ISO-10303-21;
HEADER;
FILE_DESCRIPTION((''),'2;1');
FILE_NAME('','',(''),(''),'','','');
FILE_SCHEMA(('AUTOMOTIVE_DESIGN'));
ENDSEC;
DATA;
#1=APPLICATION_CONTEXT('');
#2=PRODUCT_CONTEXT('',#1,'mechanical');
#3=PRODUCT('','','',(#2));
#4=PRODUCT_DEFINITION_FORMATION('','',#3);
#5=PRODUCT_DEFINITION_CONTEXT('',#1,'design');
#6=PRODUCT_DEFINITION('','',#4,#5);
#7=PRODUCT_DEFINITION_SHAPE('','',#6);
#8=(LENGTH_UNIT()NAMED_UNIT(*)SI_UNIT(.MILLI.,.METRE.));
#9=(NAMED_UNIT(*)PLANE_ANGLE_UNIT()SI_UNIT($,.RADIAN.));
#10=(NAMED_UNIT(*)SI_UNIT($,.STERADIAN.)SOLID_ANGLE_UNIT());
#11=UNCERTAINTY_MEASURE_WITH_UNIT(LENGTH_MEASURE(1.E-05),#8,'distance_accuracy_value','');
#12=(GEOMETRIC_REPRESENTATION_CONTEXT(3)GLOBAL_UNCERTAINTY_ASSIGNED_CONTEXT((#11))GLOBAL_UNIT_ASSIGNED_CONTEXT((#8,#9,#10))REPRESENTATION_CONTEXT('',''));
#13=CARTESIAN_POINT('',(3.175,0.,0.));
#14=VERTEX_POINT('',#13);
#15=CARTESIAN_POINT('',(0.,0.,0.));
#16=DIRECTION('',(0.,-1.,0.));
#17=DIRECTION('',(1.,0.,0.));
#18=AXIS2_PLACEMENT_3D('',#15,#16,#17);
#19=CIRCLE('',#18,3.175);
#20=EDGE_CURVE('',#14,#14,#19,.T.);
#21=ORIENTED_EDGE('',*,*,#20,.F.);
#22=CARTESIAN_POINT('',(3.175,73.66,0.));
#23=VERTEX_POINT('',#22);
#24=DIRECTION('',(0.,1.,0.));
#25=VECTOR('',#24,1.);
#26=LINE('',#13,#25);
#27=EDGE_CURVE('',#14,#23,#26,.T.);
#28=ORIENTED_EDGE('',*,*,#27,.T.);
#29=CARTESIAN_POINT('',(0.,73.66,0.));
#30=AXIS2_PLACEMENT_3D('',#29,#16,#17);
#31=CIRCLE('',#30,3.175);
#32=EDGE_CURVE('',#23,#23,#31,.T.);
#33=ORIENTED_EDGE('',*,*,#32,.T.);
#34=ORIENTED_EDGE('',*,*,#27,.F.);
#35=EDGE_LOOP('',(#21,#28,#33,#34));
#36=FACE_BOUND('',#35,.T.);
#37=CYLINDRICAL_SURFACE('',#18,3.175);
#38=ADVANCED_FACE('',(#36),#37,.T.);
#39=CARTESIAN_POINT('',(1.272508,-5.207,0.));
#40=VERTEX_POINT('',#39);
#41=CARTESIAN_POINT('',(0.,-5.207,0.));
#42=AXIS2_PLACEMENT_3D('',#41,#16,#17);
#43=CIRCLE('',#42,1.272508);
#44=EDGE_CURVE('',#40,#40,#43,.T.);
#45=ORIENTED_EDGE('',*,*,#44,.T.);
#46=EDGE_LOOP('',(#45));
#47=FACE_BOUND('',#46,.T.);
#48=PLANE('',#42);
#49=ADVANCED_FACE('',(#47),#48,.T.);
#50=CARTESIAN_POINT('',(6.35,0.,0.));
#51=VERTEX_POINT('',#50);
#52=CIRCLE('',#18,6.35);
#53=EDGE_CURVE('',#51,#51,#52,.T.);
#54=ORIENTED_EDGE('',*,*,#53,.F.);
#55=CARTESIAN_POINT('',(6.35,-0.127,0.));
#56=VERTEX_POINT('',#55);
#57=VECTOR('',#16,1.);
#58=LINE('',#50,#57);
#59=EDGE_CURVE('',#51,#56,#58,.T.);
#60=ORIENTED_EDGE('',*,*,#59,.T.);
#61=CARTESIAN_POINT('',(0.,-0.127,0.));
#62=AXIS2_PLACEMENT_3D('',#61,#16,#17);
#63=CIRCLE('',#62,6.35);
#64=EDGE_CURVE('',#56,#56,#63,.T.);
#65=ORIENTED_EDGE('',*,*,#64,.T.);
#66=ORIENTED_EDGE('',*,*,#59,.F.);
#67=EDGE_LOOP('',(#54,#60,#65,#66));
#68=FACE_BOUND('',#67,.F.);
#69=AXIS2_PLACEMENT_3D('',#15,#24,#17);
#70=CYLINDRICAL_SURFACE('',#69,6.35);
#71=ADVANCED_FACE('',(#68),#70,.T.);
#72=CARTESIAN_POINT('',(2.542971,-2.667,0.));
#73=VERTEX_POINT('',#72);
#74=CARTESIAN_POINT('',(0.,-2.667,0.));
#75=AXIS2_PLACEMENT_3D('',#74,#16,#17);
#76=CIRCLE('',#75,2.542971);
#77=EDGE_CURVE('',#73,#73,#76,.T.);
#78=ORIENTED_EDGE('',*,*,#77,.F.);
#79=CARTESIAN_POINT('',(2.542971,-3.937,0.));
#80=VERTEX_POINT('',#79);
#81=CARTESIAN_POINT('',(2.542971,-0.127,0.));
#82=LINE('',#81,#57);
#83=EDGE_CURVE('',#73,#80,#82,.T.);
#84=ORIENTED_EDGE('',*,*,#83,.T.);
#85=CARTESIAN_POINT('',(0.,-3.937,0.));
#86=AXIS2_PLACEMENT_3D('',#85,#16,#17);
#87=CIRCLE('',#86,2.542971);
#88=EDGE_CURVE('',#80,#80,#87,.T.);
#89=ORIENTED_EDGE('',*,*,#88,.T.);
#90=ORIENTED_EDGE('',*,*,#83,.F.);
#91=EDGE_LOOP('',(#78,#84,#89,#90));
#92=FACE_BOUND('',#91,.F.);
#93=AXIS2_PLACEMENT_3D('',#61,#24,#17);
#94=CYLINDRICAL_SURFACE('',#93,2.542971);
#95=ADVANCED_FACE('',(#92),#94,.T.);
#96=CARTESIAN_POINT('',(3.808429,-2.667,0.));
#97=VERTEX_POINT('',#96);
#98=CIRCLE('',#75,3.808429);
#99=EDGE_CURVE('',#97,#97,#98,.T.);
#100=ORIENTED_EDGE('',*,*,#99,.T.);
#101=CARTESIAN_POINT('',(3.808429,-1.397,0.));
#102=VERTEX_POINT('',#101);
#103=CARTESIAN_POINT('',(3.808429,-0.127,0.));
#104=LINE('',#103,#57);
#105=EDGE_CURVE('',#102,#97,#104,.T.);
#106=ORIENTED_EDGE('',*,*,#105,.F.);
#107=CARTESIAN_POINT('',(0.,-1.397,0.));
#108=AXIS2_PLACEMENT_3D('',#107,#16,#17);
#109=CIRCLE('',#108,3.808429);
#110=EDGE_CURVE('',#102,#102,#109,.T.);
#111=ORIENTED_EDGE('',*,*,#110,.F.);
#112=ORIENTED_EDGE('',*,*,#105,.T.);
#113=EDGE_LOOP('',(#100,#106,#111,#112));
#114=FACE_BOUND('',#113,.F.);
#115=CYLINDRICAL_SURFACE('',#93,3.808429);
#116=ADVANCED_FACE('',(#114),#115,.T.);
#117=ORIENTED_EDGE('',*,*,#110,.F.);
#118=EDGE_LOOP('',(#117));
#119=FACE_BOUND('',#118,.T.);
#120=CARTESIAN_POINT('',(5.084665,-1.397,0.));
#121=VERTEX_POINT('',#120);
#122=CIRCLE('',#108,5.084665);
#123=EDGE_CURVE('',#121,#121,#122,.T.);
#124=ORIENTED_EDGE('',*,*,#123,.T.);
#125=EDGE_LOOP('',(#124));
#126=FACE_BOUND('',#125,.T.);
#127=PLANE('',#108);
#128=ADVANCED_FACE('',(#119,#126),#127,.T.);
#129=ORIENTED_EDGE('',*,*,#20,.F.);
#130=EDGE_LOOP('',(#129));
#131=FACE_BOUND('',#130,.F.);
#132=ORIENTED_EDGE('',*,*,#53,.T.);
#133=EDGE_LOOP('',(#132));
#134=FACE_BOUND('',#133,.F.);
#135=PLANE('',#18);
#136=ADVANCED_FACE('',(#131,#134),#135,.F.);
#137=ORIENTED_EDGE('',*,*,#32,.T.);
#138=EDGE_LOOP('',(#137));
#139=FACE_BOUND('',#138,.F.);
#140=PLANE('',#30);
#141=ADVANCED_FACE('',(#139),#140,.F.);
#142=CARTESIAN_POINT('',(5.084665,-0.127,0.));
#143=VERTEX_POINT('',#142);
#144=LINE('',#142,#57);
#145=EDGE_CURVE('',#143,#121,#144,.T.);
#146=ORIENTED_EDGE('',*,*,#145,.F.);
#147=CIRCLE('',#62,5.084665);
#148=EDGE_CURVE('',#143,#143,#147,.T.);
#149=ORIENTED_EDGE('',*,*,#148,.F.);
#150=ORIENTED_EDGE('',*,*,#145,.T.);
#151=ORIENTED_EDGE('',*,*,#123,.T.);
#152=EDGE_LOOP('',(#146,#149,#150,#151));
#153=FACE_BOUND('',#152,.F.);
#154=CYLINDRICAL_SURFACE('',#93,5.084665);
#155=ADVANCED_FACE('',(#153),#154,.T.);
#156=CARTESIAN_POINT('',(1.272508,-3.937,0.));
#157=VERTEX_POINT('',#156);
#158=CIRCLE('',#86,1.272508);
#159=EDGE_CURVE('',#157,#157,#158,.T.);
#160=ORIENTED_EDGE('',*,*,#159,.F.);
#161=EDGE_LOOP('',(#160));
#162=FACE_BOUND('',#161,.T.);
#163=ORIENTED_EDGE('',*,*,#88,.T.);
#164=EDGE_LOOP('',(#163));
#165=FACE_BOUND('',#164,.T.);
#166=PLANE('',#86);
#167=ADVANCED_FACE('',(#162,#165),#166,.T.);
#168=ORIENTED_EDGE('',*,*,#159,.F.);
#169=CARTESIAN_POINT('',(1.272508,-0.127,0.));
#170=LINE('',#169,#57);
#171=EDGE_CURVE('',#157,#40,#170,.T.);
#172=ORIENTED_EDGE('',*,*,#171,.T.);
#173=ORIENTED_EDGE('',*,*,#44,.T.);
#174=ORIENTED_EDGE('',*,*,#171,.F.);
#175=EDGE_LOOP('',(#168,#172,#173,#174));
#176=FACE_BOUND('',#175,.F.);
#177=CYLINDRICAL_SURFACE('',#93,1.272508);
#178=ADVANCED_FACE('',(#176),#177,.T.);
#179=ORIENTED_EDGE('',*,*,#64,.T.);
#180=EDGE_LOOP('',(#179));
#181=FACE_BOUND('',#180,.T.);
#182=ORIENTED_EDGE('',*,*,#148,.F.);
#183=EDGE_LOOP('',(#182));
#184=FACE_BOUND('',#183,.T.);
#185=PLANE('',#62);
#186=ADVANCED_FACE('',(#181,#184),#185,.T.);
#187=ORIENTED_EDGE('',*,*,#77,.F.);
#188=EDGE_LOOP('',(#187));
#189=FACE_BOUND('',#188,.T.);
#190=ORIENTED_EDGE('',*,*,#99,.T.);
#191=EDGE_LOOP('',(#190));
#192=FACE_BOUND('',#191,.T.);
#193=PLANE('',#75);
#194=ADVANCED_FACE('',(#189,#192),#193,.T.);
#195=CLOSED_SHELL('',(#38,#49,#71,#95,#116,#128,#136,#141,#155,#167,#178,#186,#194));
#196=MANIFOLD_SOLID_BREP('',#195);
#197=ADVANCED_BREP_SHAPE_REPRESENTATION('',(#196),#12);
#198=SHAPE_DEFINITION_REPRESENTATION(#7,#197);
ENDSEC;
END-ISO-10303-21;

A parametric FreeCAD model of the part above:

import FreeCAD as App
import Part
import Sketcher
from FreeCAD import Vector
Q = App.Units.Quantity

doc = App.newDocument("Part")
params = doc.addObject("Spreadsheet::Sheet", "Params")
for row, (alias, value) in enumerate([
    ("sketch1_diameter", "0.5 in"),
    ("pad1_length", "0.005 in"),
    ("pad2_length", "0.05 in"),
    ("pad3_length", "0.1 in"),
    ("pad4_length", "0.15 in"),
    ("pad5_length", "0.2 in"),
    ("sketch6_diameter", "0.25 in"),
    ("pad6_length", "2.9 in"),
], start=1):
    params.set(f"A{row}", alias)
    params.set(f"B{row}", "=" + value)
    params.setAlias(f"B{row}", alias)

body = doc.addObject("PartDesign::Body", "Body")

sketch1 = body.newObject("Sketcher::SketchObject", "Sketch")
sketch1.AttachmentSupport = (doc.getObject("XZ_Plane"), [""])
sketch1.MapMode = "FlatFace"
sketch1.addGeometry(Part.Circle(Vector(0, 0, 0), Vector(0, 0, 1), 6.35), False)
sketch1.addConstraint(Sketcher.Constraint("Coincident", 0, 3, -1, 1))
sketch1.addConstraint(Sketcher.Constraint("Diameter", 0, Q("0.5 in")))
sketch1.setExpression("Constraints[1]", "Params.sketch1_diameter")
pad1 = body.newObject("PartDesign::Pad", "Pad")
pad1.Profile = sketch1
pad1.setExpression("Length", "Params.pad1_length")

sketch2 = body.newObject("Sketcher::SketchObject", "Sketch001")
sketch2.AttachmentSupport = (doc.getObject("XZ_Plane"), [""])
sketch2.MapMode = "FlatFace"
sketch2.AttachmentOffset = App.Placement(Vector(0, 0, 0.005 * 25.4), App.Rotation())
sketch2.addGeometry(Part.Circle(Vector(0, 0, 0), Vector(0, 0, 1), 5.084665), False)
sketch2.addGeometry(Part.Circle(Vector(0, 0, 0), Vector(0, 0, 1), 3.808429), False)
sketch2.addConstraint(Sketcher.Constraint("Coincident", 0, 3, -1, 1))
sketch2.addConstraint(Sketcher.Constraint("Coincident", 1, 3, -1, 1))
sketch2.addConstraint(Sketcher.Constraint("Diameter", 0, Q("10.16933 mm")))
sketch2.addConstraint(Sketcher.Constraint("Diameter", 1, Q("7.616858 mm")))
pad2 = body.newObject("PartDesign::Pad", "Pad001")
pad2.Profile = sketch2
pad2.setExpression("Length", "Params.pad2_length")

sketch3 = body.newObject("Sketcher::SketchObject", "Sketch002")
sketch3.AttachmentSupport = (doc.getObject("XZ_Plane"), [""])
sketch3.MapMode = "FlatFace"
sketch3.AttachmentOffset = App.Placement(Vector(0, 0, 0.005 * 25.4), App.Rotation())
sketch3.addGeometry(Part.Circle(Vector(0, 0, 0), Vector(0, 0, 1), 3.808429), False)
sketch3.addGeometry(Part.Circle(Vector(0, 0, 0), Vector(0, 0, 1), 2.542971), False)
sketch3.addConstraint(Sketcher.Constraint("Coincident", 0, 3, -1, 1))
sketch3.addConstraint(Sketcher.Constraint("Coincident", 1, 3, -1, 1))
sketch3.addConstraint(Sketcher.Constraint("Diameter", 0, Q("7.616858 mm")))
sketch3.addConstraint(Sketcher.Constraint("Diameter", 1, Q("5.085942 mm")))
pad3 = body.newObject("PartDesign::Pad", "Pad002")
pad3.Profile = sketch3
pad3.setExpression("Length", "Params.pad3_length")

sketch4 = body.newObject("Sketcher::SketchObject", "Sketch003")
sketch4.AttachmentSupport = (doc.getObject("XZ_Plane"), [""])
sketch4.MapMode = "FlatFace"
sketch4.AttachmentOffset = App.Placement(Vector(0, 0, 0.005 * 25.4), App.Rotation())
sketch4.addGeometry(Part.Circle(Vector(0, 0, 0), Vector(0, 0, 1), 2.542971), False)
sketch4.addGeometry(Part.Circle(Vector(0, 0, 0), Vector(0, 0, 1), 1.272508), False)
sketch4.addConstraint(Sketcher.Constraint("Coincident", 0, 3, -1, 1))
sketch4.addConstraint(Sketcher.Constraint("Coincident", 1, 3, -1, 1))
sketch4.addConstraint(Sketcher.Constraint("Diameter", 0, Q("5.085942 mm")))
sketch4.addConstraint(Sketcher.Constraint("Diameter", 1, Q("2.545016 mm")))
pad4 = body.newObject("PartDesign::Pad", "Pad003")
pad4.Profile = sketch4
pad4.setExpression("Length", "Params.pad4_length")

sketch5 = body.newObject("Sketcher::SketchObject", "Sketch004")
sketch5.AttachmentSupport = (doc.getObject("XZ_Plane"), [""])
sketch5.MapMode = "FlatFace"
sketch5.AttachmentOffset = App.Placement(Vector(0, 0, 0.005 * 25.4), App.Rotation())
sketch5.addGeometry(Part.Circle(Vector(0, 0, 0), Vector(0, 0, 1), 1.272508), False)
sketch5.addConstraint(Sketcher.Constraint("Coincident", 0, 3, -1, 1))
sketch5.addConstraint(Sketcher.Constraint("Diameter", 0, Q("2.545016 mm")))
pad5 = body.newObject("PartDesign::Pad", "Pad004")
pad5.Profile = sketch5
pad5.setExpression("Length", "Params.pad5_length")

sketch6 = body.newObject("Sketcher::SketchObject", "Sketch005")
sketch6.AttachmentSupport = (doc.getObject("XZ_Plane"), [""])
sketch6.MapMode = "FlatFace"
sketch6.addGeometry(Part.Circle(Vector(0, 0, 0), Vector(0, 0, 1), 3.175), False)
sketch6.addConstraint(Sketcher.Constraint("Coincident", 0, 3, -1, 1))
sketch6.addConstraint(Sketcher.Constraint("Diameter", 0, Q("0.25 in")))
sketch6.setExpression("Constraints[1]", "Params.sketch6_diameter")
pad6 = body.newObject("PartDesign::Pad", "Pad005")
pad6.Profile = sketch6
pad6.setExpression("Length", "Params.pad6_length")
pad6.Reversed = True

doc.recompute()
